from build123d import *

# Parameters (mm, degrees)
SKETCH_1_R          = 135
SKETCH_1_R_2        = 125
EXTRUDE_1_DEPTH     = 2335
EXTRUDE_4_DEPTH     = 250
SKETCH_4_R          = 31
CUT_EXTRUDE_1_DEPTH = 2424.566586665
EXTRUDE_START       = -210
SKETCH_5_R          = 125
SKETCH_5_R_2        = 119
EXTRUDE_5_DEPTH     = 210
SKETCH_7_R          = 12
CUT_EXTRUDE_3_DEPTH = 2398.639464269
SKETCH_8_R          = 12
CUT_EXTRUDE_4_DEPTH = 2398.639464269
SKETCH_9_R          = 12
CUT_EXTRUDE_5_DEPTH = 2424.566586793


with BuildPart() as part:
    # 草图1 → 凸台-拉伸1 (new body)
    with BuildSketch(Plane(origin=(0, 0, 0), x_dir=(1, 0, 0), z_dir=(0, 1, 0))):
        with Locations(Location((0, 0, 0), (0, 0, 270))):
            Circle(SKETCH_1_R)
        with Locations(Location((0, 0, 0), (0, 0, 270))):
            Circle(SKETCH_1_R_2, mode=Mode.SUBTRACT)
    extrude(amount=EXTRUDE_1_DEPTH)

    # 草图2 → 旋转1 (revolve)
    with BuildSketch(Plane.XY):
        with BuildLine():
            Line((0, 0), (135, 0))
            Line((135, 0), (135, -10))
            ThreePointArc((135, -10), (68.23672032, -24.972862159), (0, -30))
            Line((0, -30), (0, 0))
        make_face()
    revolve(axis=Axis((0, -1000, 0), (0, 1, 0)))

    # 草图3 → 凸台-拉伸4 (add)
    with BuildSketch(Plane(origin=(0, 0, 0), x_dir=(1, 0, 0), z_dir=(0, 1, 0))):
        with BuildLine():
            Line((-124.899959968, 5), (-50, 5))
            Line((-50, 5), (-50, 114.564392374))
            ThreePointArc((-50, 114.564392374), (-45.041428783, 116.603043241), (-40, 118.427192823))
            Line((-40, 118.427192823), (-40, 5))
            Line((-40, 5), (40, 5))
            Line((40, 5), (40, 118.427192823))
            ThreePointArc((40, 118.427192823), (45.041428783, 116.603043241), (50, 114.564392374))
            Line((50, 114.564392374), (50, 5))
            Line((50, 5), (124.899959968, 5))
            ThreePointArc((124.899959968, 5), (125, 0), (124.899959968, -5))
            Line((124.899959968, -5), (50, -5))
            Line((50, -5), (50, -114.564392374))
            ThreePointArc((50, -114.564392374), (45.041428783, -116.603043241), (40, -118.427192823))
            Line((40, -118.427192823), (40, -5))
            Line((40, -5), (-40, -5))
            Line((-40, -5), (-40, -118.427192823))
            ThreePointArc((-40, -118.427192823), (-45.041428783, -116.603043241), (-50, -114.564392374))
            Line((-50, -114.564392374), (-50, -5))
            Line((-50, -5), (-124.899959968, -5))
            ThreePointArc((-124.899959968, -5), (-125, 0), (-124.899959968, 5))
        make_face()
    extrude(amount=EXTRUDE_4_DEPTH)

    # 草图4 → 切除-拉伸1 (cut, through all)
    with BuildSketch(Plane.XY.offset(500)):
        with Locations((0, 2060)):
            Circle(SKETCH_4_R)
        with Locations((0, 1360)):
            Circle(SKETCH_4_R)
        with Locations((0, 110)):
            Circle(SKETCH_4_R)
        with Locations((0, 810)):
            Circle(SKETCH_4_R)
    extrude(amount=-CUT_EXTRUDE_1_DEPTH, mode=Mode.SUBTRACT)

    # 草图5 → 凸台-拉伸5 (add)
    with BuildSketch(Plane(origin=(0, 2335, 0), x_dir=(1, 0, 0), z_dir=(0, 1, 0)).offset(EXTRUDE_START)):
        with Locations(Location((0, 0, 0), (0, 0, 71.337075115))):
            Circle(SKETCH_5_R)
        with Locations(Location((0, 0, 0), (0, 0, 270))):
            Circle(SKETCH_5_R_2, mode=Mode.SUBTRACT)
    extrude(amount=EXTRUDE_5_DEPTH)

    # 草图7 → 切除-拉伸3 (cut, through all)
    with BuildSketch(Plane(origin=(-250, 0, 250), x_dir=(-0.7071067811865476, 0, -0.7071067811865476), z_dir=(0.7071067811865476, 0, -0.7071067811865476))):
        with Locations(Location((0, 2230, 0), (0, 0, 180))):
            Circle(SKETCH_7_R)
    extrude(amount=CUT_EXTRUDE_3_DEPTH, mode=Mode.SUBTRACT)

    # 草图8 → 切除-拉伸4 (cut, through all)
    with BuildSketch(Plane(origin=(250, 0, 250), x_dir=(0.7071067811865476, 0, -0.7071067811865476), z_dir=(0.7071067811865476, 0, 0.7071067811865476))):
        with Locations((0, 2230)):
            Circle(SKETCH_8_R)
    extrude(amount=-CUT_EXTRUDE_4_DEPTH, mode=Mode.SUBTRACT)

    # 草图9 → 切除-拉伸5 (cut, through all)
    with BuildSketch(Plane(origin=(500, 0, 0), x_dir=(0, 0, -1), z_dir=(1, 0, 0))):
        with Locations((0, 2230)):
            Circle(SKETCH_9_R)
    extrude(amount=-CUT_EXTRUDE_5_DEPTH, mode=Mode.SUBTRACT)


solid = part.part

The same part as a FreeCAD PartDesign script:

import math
import FreeCAD as App
import Part
import Sketcher
from FreeCAD import Vector
Q = App.Units.Quantity

doc = App.newDocument("Part")
body = doc.addObject("PartDesign::Body", "Body")

# Sketch on XZ plane
sketch1 = body.newObject("Sketcher::SketchObject", "Sketch")
sketch1.AttachmentSupport = (doc.getObject("XZ_Plane"), [""])
sketch1.MapMode = "FlatFace"
sketch1.addGeometry(Part.Circle(Vector(0, 0, 0), Vector(0, 0, 1), 135), False)
sketch1.addGeometry(Part.Circle(Vector(0, 0, 0), Vector(0, 0, 1), 125), False)
sketch1.addConstraint(Sketcher.Constraint("Coincident", 0, 3, -1, 1))
sketch1.addConstraint(Sketcher.Constraint("Coincident", 1, 3, -1, 1))
sketch1.addConstraint(Sketcher.Constraint("Diameter", 0, Q("270 mm")))
sketch1.addConstraint(Sketcher.Constraint("Diameter", 1, Q("250 mm")))
pad1 = body.newObject("PartDesign::Pad", "Pad")
pad1.Profile = sketch1
pad1.Length = 2335
pad1.Reversed = True

# Sketch on XY plane
sketch2 = body.newObject("Sketcher::SketchObject", "Sketch001")
sketch2.AttachmentSupport = (doc.getObject("XY_Plane"), [""])
sketch2.MapMode = "FlatFace"
sketch2.addGeometry(Part.LineSegment(Vector(135, 0, 0), Vector(0, 0, 0)), False)
sketch2.addGeometry(Part.LineSegment(Vector(0, 0, 0), Vector(0, -30, 0)), False)
sketch2.addGeometry(Part.ArcOfCircle(Part.Circle(Vector(0, 436, 0), Vector(0, 0, 1), 466), math.radians(-90), math.radians(-73.15)), False)
sketch2.addGeometry(Part.LineSegment(Vector(135, -10, 0), Vector(135, 0, 0)), False)
sketch2.addConstraint(Sketcher.Constraint("Coincident", 0, 2, 1, 1))
sketch2.addConstraint(Sketcher.Constraint("Coincident", 1, 2, 2, 1))
sketch2.addConstraint(Sketcher.Constraint("Coincident", 2, 2, 3, 1))
sketch2.addConstraint(Sketcher.Constraint("Coincident", 3, 2, 0, 1))
sketch2.addConstraint(Sketcher.Constraint("Horizontal", 0))
sketch2.addConstraint(Sketcher.Constraint("Vertical", 1))
sketch2.addConstraint(Sketcher.Constraint("Vertical", 3))
sketch2.addConstraint(Sketcher.Constraint("Coincident", 0, 2, -1, 1))
sketch2.addConstraint(Sketcher.Constraint("PointOnObject", 2, 3, -2))
sketch2.addConstraint(Sketcher.Constraint("DistanceX", 0, 2, 0, 1, Q("135 mm")))
sketch2.addConstraint(Sketcher.Constraint("DistanceY", 1, 2, 1, 1, Q("30 mm")))
sketch2.addConstraint(Sketcher.Constraint("DistanceY", 3, 1, 3, 2, Q("10 mm")))
revolution = body.newObject("PartDesign::Revolution", "Revolution")
revolution.Profile = sketch2
revolution.ReferenceAxis = (sketch2, ["V_Axis"])
revolution.Angle = 360

# Sketch on XZ plane
sketch3 = body.newObject("Sketcher::SketchObject", "Sketch002")
sketch3.AttachmentSupport = (doc.getObject("XZ_Plane"), [""])
sketch3.MapMode = "FlatFace"
sketch3.addGeometry(Part.LineSegment(Vector(-50, -5, 0), Vector(-125, -5, 0)), False)
sketch3.addGeometry(Part.ArcOfCircle(Part.Circle(Vector(0, 0, 0), Vector(0, 0, 1), 125), math.radians(177.71), math.radians(182.29)), False)
sketch3.addGeometry(Part.LineSegment(Vector(-125, 5, 0), Vector(-50, 5, 0)), False)
sketch3.addGeometry(Part.LineSegment(Vector(-50, 5, 0), Vector(-50, 115, 0)), False)
sketch3.addGeometry(Part.ArcOfCircle(Part.Circle(Vector(0, 0, 0), Vector(0, 0, 1), 125), math.radians(108.66), math.radians(113.58)), False)
sketch3.addGeometry(Part.LineSegment(Vector(-40, 118, 0), Vector(-40, 5, 0)), False)
sketch3.addGeometry(Part.LineSegment(Vector(-40, 5, 0), Vector(40, 5, 0)), False)
sketch3.addGeometry(Part.LineSegment(Vector(40, 5, 0), Vector(40, 118, 0)), False)
sketch3.addGeometry(Part.ArcOfCircle(Part.Circle(Vector(0, 0, 0), Vector(0, 0, 1), 125), math.radians(66.42), math.radians(71.34)), False)
sketch3.addGeometry(Part.LineSegment(Vector(50, 115, 0), Vector(50, 5, 0)), False)
sketch3.addGeometry(Part.LineSegment(Vector(50, 5, 0), Vector(125, 5, 0)), False)
sketch3.addGeometry(Part.ArcOfCircle(Part.Circle(Vector(0, 0, 0), Vector(0, 0, 1), 125), math.radians(-2.29), math.radians(2.29)), False)
sketch3.addGeometry(Part.LineSegment(Vector(125, -5, 0), Vector(50, -5, 0)), False)
sketch3.addGeometry(Part.LineSegment(Vector(50, -5, 0), Vector(50, -115, 0)), False)
sketch3.addGeometry(Part.ArcOfCircle(Part.Circle(Vector(0, 0, 0), Vector(0, 0, 1), 125), math.radians(-71.34), math.radians(-66.42)), False)
sketch3.addGeometry(Part.LineSegment(Vector(40, -118, 0), Vector(40, -5, 0)), False)
sketch3.addGeometry(Part.LineSegment(Vector(40, -5, 0), Vector(-40, -5, 0)), False)
sketch3.addGeometry(Part.LineSegment(Vector(-40, -5, 0), Vector(-40, -118, 0)), False)
sketch3.addGeometry(Part.ArcOfCircle(Part.Circle(Vector(0, 0, 0), Vector(0, 0, 1), 125), math.radians(-113.58), math.radians(-108.66)), False)
sketch3.addGeometry(Part.LineSegment(Vector(-50, -115, 0), Vector(-50, -5, 0)), False)
sketch3.addConstraint(Sketcher.Constraint("Coincident", 0, 2, 1, 2))
sketch3.addConstraint(Sketcher.Constraint("Coincident", 1, 1, 2, 1))
sketch3.addConstraint(Sketcher.Constraint("Coincident", 2, 2, 3, 1))
sketch3.addConstraint(Sketcher.Constraint("Coincident", 3, 2, 4, 2))
sketch3.addConstraint(Sketcher.Constraint("Coincident", 4, 1, 5, 1))
sketch3.addConstraint(Sketcher.Constraint("Coincident", 5, 2, 6, 1))
sketch3.addConstraint(Sketcher.Constraint("Coincident", 6, 2, 7, 1))
sketch3.addConstraint(Sketcher.Constraint("Coincident", 7, 2, 8, 2))
sketch3.addConstraint(Sketcher.Constraint("Coincident", 8, 1, 9, 1))
sketch3.addConstraint(Sketcher.Constraint("Coincident", 9, 2, 10, 1))
sketch3.addConstraint(Sketcher.Constraint("Coincident", 10, 2, 11, 2))
sketch3.addConstraint(Sketcher.Constraint("Coincident", 11, 1, 12, 1))
sketch3.addConstraint(Sketcher.Constraint("Coincident", 12, 2, 13, 1))
sketch3.addConstraint(Sketcher.Constraint("Coincident", 13, 2, 14, 2))
sketch3.addConstraint(Sketcher.Constraint("Coincident", 14, 1, 15, 1))
sketch3.addConstraint(Sketcher.Constraint("Coincident", 15, 2, 16, 1))
sketch3.addConstraint(Sketcher.Constraint("Coincident", 16, 2, 17, 1))
sketch3.addConstraint(Sketcher.Constraint("Coincident", 17, 2, 18, 2))
sketch3.addConstraint(Sketcher.Constraint("Coincident", 18, 1, 19, 1))
sketch3.addConstraint(Sketcher.Constraint("Coincident", 19, 2, 0, 1))
sketch3.addConstraint(Sketcher.Constraint("Horizontal", 0))
sketch3.addConstraint(Sketcher.Constraint("Horizontal", 2))
sketch3.addConstraint(Sketcher.Constraint("Vertical", 3))
sketch3.addConstraint(Sketcher.Constraint("Vertical", 5))
sketch3.addConstraint(Sketcher.Constraint("Horizontal", 6))
sketch3.addConstraint(Sketcher.Constraint("Vertical", 7))
sketch3.addConstraint(Sketcher.Constraint("Vertical", 9))
sketch3.addConstraint(Sketcher.Constraint("Horizontal", 10))
sketch3.addConstraint(Sketcher.Constraint("Horizontal", 12))
sketch3.addConstraint(Sketcher.Constraint("Vertical", 13))
sketch3.addConstraint(Sketcher.Constraint("Vertical", 15))
sketch3.addConstraint(Sketcher.Constraint("Horizontal", 16))
sketch3.addConstraint(Sketcher.Constraint("Vertical", 17))
sketch3.addConstraint(Sketcher.Constraint("Vertical", 19))
sketch3.addConstraint(Sketcher.Constraint("Coincident", 1, 3, -1, 1))
sketch3.addConstraint(Sketcher.Constraint("Coincident", 4, 3, -1, 1))
sketch3.addConstraint(Sketcher.Constraint("Coincident", 8, 3, -1, 1))
sketch3.addConstraint(Sketcher.Constraint("Coincident", 11, 3, -1, 1))
sketch3.addConstraint(Sketcher.Constraint("Coincident", 14, 3, -1, 1))
sketch3.addConstraint(Sketcher.Constraint("Coincident", 18, 3, -1, 1))
sketch3.addConstraint(Sketcher.Constraint("Equal", 1, 4))
sketch3.addConstraint(Sketcher.Constraint("Equal", 4, 8))
sketch3.addConstraint(Sketcher.Constraint("Equal", 8, 11))
sketch3.addConstraint(Sketcher.Constraint("Equal", 11, 14))
sketch3.addConstraint(Sketcher.Constraint("Equal", 14, 18))
sketch3.addConstraint(Sketcher.Constraint("Symmetric", 2, 2, 12, 2, -1, 1))
sketch3.addConstraint(Sketcher.Constraint("Symmetric", 5, 2, 15, 2, -1, 1))
sketch3.addConstraint(Sketcher.Constraint("Symmetric", 9, 2, 19, 2, -1, 1))
sketch3.addConstraint(Sketcher.Constraint("Symmetric", 2, 2, 9, 2, -2))
sketch3.addConstraint(Sketcher.Constraint("Horizontal", 2, 2, 5, 2))
sketch3.addConstraint(Sketcher.Constraint("Horizontal", 4, 1, 7, 2))
sketch3.addConstraint(Sketcher.Constraint("Horizontal", 14, 1, 17, 2))
sketch3.addConstraint(Sketcher.Constraint("Radius", 1, Q("125 mm")))
sketch3.addConstraint(Sketcher.Constraint("DistanceX", 6, 1, 6, 2, Q("80 mm")))
sketch3.addConstraint(Sketcher.Constraint("DistanceY", 0, 2, -1, 1, Q("5 mm")))
sketch3.addConstraint(Sketcher.Constraint("DistanceX", 2, 2, -1, 1, Q("50 mm")))
pad2 = body.newObject("PartDesign::Pad", "Pad001")
pad2.Profile = sketch3
pad2.Length = 250
pad2.Reversed = True

# Sketch on XY plane
sketch4 = body.newObject("Sketcher::SketchObject", "Sketch003")
sketch4.AttachmentSupport = (doc.getObject("XY_Plane"), [""])
sketch4.MapMode = "FlatFace"
sketch4.AttachmentOffset = App.Placement(Vector(0, 0, 500), App.Rotation())
sketch4.addGeometry(Part.Circle(Vector(0, 2060, 0), Vector(0, 0, 1), 31), False)
sketch4.addGeometry(Part.Circle(Vector(0, 1360, 0), Vector(0, 0, 1), 31), False)
sketch4.addGeometry(Part.Circle(Vector(0, 110, 0), Vector(0, 0, 1), 31), False)
sketch4.addGeometry(Part.Circle(Vector(0, 810, 0), Vector(0, 0, 1), 31), False)
sketch4.addConstraint(Sketcher.Constraint("Equal", 0, 1))
sketch4.addConstraint(Sketcher.Constraint("Equal", 1, 2))
sketch4.addConstraint(Sketcher.Constraint("Equal", 2, 3))
sketch4.addConstraint(Sketcher.Constraint("PointOnObject", 0, 3, -2))
sketch4.addConstraint(Sketcher.Constraint("PointOnObject", 1, 3, -2))
sketch4.addConstraint(Sketcher.Constraint("PointOnObject", 2, 3, -2))
sketch4.addConstraint(Sketcher.Constraint("PointOnObject", 3, 3, -2))
sketch4.addConstraint(Sketcher.Constraint("Diameter", 0, Q("62 mm")))
sketch4.addConstraint(Sketcher.Constraint("DistanceY", -1, 1, 0, 3, Q("2060 mm")))
sketch4.addConstraint(Sketcher.Constraint("DistanceY", -1, 1, 1, 3, Q("1360 mm")))
sketch4.addConstraint(Sketcher.Constraint("DistanceY", -1, 1, 2, 3, Q("110 mm")))
sketch4.addConstraint(Sketcher.Constraint("DistanceY", -1, 1, 3, 3, Q("810 mm")))
pocket1 = body.newObject("PartDesign::Pocket", "Pocket")
pocket1.Profile = sketch4
pocket1.Type = "ThroughAll"

# Sketch on XZ plane
sketch5 = body.newObject("Sketcher::SketchObject", "Sketch004")
sketch5.AttachmentSupport = (doc.getObject("XZ_Plane"), [""])
sketch5.MapMode = "FlatFace"
sketch5.AttachmentOffset = App.Placement(Vector(0, 0, -2125), App.Rotation())
sketch5.addGeometry(Part.Circle(Vector(0, 0, 0), Vector(0, 0, 1), 125), False)
sketch5.addGeometry(Part.Circle(Vector(0, 0, 0), Vector(0, 0, 1), 119), False)
sketch5.addConstraint(Sketcher.Constraint("Coincident", 0, 3, -1, 1))
sketch5.addConstraint(Sketcher.Constraint("Coincident", 1, 3, -1, 1))
sketch5.addConstraint(Sketcher.Constraint("Diameter", 0, Q("250 mm")))
sketch5.addConstraint(Sketcher.Constraint("Diameter", 1, Q("238 mm")))
pad3 = body.newObject("PartDesign::Pad", "Pad002")
pad3.Profile = sketch5
pad3.Length = 210
pad3.Reversed = True

# Sketch on an angled plane
sketch6 = body.newObject("Sketcher::SketchObject", "Sketch005")
sketch6.Placement = App.Placement(Vector(-250, 0, 250), App.Rotation(Vector(-0.707106781, 0, -0.707106781), Vector(0, 0.999999999, 0), Vector(0.707106781, 0, -0.707106781), "ZXY"))
sketch6.addGeometry(Part.Circle(Vector(0, 2230, 0), Vector(0, 0, 1), 12), False)
sketch6.addConstraint(Sketcher.Constraint("PointOnObject", 0, 3, -2))
sketch6.addConstraint(Sketcher.Constraint("Diameter", 0, Q("24 mm")))
sketch6.addConstraint(Sketcher.Constraint("DistanceY", -1, 1, 0, 3, Q("2229.999998 mm")))
pocket2 = body.newObject("PartDesign::Pocket", "Pocket001")
pocket2.Profile = sketch6
pocket2.Type = "ThroughAll"
pocket2.Reversed = True

# Sketch on an angled plane
sketch7 = body.newObject("Sketcher::SketchObject", "Sketch006")
sketch7.Placement = App.Placement(Vector(250, 0, 250), App.Rotation(Vector(0.707106781, 0, -0.707106781), Vector(0, 0.999999999, 0), Vector(0.707106781, 0, 0.707106781), "ZXY"))
sketch7.addGeometry(Part.Circle(Vector(0, 2230, 0), Vector(0, 0, 1), 12), False)
sketch7.addConstraint(Sketcher.Constraint("PointOnObject", 0, 3, -2))
sketch7.addConstraint(Sketcher.Constraint("Diameter", 0, Q("24 mm")))
sketch7.addConstraint(Sketcher.Constraint("DistanceY", -1, 1, 0, 3, Q("2229.999998 mm")))
pocket3 = body.newObject("PartDesign::Pocket", "Pocket002")
pocket3.Profile = sketch7
pocket3.Type = "ThroughAll"

# Sketch on YZ plane
sketch8 = body.newObject("Sketcher::SketchObject", "Sketch007")
sketch8.AttachmentSupport = (doc.getObject("YZ_Plane"), [""])
sketch8.MapMode = "FlatFace"
sketch8.AttachmentOffset = App.Placement(Vector(0, 0, 500), App.Rotation())
sketch8.addGeometry(Part.Circle(Vector(2230, 0, 0), Vector(0, 0, 1), 12), False)
sketch8.addConstraint(Sketcher.Constraint("PointOnObject", 0, 3, -1))
sketch8.addConstraint(Sketcher.Constraint("Diameter", 0, Q("24 mm")))
sketch8.addConstraint(Sketcher.Constraint("DistanceX", -1, 1, 0, 3, Q("2230 mm")))
pocket4 = body.newObject("PartDesign::Pocket", "Pocket003")
pocket4.Profile = sketch8
pocket4.Type = "ThroughAll"

doc.recompute()
